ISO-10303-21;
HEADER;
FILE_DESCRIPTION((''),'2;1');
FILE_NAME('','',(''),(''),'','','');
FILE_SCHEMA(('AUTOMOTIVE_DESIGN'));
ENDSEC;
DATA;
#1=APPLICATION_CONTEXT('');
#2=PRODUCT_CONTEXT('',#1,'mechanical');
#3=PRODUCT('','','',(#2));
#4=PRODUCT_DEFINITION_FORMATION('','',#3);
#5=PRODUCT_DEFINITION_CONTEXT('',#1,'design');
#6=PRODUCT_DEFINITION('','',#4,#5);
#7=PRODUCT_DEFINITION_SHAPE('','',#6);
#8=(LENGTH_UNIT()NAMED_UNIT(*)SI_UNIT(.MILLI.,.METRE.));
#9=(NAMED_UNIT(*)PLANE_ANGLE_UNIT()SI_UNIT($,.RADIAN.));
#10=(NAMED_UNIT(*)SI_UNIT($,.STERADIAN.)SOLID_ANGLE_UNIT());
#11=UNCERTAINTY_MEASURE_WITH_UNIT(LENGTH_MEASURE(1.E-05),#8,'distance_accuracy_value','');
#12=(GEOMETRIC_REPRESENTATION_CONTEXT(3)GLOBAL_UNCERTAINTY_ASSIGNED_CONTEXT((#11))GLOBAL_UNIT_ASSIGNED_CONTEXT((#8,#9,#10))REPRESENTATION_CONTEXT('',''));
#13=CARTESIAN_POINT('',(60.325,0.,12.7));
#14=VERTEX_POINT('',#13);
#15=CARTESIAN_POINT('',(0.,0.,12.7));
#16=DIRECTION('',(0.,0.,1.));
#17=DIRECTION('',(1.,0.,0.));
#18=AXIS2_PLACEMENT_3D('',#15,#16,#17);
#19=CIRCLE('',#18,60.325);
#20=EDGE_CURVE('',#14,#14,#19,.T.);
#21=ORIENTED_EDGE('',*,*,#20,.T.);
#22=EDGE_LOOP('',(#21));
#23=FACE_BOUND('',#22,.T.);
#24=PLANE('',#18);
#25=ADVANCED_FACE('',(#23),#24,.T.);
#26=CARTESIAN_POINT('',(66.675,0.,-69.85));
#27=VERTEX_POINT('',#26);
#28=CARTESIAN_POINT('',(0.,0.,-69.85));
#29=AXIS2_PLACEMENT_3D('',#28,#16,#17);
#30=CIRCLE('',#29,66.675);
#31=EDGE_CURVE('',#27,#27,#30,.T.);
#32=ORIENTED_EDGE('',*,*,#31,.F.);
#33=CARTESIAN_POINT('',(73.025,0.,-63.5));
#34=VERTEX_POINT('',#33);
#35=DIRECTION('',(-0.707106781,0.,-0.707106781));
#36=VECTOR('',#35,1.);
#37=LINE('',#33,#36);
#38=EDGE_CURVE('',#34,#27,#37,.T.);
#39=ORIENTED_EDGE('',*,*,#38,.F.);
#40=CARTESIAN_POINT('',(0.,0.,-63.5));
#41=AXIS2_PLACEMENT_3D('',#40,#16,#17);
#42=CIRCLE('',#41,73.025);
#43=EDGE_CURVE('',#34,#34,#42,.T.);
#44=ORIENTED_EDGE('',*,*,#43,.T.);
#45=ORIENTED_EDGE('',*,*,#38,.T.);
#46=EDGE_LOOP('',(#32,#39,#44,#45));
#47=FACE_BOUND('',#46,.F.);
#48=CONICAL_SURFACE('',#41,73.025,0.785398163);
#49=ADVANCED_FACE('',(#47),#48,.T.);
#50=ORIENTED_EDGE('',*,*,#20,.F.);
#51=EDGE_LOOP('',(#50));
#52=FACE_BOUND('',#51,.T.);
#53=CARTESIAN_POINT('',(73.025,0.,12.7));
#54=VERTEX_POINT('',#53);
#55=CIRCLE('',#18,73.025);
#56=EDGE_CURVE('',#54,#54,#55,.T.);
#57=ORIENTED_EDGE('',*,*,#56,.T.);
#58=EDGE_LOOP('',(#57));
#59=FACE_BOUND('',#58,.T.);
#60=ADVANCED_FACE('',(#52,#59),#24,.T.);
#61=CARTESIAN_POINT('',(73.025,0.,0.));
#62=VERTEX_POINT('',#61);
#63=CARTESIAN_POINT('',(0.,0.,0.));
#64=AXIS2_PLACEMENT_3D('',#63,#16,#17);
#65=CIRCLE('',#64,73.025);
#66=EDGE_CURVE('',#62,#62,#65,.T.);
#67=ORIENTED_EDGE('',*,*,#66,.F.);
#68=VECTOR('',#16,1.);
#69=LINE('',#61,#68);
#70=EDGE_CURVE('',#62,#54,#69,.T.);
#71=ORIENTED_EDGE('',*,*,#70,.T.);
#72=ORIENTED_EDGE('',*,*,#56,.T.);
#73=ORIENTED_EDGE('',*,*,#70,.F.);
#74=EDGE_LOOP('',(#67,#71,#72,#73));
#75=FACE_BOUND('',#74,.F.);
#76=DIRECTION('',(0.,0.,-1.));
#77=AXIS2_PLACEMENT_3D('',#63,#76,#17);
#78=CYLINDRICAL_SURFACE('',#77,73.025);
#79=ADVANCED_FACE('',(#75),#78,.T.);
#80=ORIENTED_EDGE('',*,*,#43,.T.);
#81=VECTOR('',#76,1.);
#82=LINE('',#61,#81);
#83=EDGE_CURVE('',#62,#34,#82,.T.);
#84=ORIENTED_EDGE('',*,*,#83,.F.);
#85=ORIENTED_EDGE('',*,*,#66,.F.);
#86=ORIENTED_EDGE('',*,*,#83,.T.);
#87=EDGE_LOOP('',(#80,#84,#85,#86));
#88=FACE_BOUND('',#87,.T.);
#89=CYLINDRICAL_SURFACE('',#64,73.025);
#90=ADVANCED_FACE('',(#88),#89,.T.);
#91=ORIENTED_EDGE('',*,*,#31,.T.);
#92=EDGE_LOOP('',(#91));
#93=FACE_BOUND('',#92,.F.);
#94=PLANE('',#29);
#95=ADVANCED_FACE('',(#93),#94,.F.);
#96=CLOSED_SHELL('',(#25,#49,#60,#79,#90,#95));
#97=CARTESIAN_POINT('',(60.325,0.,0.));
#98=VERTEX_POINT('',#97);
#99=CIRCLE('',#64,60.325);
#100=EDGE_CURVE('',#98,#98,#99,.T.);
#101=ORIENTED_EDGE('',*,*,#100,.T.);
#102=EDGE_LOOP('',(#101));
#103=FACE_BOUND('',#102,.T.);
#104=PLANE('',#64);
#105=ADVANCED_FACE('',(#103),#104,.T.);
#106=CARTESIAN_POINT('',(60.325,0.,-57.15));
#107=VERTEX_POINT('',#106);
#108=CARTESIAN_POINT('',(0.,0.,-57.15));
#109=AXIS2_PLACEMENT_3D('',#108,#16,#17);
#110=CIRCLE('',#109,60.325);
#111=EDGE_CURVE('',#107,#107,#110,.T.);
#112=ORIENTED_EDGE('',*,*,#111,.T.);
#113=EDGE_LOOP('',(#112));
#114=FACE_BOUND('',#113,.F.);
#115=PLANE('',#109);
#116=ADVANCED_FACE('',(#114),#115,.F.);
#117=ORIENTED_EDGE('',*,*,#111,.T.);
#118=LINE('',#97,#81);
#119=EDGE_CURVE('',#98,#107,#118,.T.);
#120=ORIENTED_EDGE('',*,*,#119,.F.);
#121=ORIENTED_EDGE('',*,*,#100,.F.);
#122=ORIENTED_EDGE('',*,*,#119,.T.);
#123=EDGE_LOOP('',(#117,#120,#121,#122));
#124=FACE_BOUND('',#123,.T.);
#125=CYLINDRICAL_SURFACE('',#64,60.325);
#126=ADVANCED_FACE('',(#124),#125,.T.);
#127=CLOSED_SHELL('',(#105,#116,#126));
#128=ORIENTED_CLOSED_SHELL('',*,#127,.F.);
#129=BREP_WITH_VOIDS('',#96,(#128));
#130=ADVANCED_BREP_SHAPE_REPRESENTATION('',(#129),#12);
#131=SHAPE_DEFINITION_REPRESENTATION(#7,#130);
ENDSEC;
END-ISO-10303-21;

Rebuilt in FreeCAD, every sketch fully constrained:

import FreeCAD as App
import Part
import Sketcher

V = App.Vector
Q = App.Units.Quantity


def edges_at(feature, points):
    """Names of the edges that pass closest to the given points."""
    edges = feature.Shape.Edges
    near = lambda p: min(range(len(edges)), key=lambda i: edges[i].distToShape(Part.Vertex(*p))[0])
    return sorted({f"Edge{near(p) + 1}" for p in points})

doc = App.newDocument("Part")
body = doc.addObject("PartDesign::Body", "Body")

sketch1 = body.newObject("Sketcher::SketchObject", "Sketch")
sketch1.AttachmentSupport = (doc.getObject("XY_Plane"), [""])
sketch1.MapMode = "FlatFace"
sketch1.addGeometry(Part.Circle(V(0, 0, 0), V(0, 0, 1), 73), False)
sketch1.addConstraint(Sketcher.Constraint("Coincident", 0, 3, -1, 1))
sketch1.addConstraint(Sketcher.Constraint("Diameter", 0, Q("5.75 in")))
pad1 = body.newObject("PartDesign::Pad", "Pad")
pad1.Profile = sketch1
pad1.Length = Q("2.75 in")
pad1.Reversed = True

sketch2 = body.newObject("Sketcher::SketchObject", "Sketch001")
sketch2.AttachmentSupport = (doc.getObject("XY_Plane"), [""])
sketch2.MapMode = "FlatFace"
sketch2.addGeometry(Part.Circle(V(0, 0, 0), V(0, 0, 1), 60), False)
sketch2.addConstraint(Sketcher.Constraint("Coincident", 0, 3, -1, 1))
sketch2.addConstraint(Sketcher.Constraint("Diameter", 0, Q("4.75 in")))
pocket1 = body.newObject("PartDesign::Pocket", "Pocket")
pocket1.Profile = sketch2
pocket1.Length = Q("2.25 in")
doc.recompute()

chamfer = body.newObject("PartDesign::Chamfer", "Chamfer")
chamfer.Base = (pocket1, edges_at(pocket1, [(-73.025, 0, -69.85)]))
chamfer.Size = Q("0.25 in")

sketch3 = body.newObject("Sketcher::SketchObject", "Sketch002")
sketch3.AttachmentSupport = (doc.getObject("XY_Plane"), [""])
sketch3.MapMode = "FlatFace"
sketch3.addGeometry(Part.Circle(V(0, 0, 0), V(0, 0, 1), 73), False)
sketch3.addGeometry(Part.Circle(V(0, 0, 0), V(0, 0, 1), 60), False)
sketch3.addConstraint(Sketcher.Constraint("Coincident", 0, 3, -1, 1))
sketch3.addConstraint(Sketcher.Constraint("Coincident", 1, 3, -1, 1))
sketch3.addConstraint(Sketcher.Constraint("Diameter", 0, Q("5.75 in")))
sketch3.addConstraint(Sketcher.Constraint("Diameter", 1, Q("4.75 in")))
pad2 = body.newObject("PartDesign::Pad", "Pad001")
pad2.Profile = sketch3
pad2.Length = Q("0.5 in")

sketch4 = body.newObject("Sketcher::SketchObject", "Sketch003")
sketch4.AttachmentSupport = (doc.getObject("XY_Plane"), [""])
sketch4.MapMode = "FlatFace"
sketch4.AttachmentOffset = App.Placement(V(0, 0, 0.5 * 25.4), App.Rotation())
sketch4.addGeometry(Part.Circle(V(0, 0, 0), V(0, 0, 1), 73), False)
sketch4.addConstraint(Sketcher.Constraint("Coincident", 0, 3, -1, 1))
sketch4.addConstraint(Sketcher.Constraint("Diameter", 0, Q("5.75 in")))
pad3 = body.newObject("PartDesign::Pad", "Pad002")
pad3.Profile = sketch4
pad3.Length = Q("0.5 in")
pad3.Reversed = True

doc.recompute()
